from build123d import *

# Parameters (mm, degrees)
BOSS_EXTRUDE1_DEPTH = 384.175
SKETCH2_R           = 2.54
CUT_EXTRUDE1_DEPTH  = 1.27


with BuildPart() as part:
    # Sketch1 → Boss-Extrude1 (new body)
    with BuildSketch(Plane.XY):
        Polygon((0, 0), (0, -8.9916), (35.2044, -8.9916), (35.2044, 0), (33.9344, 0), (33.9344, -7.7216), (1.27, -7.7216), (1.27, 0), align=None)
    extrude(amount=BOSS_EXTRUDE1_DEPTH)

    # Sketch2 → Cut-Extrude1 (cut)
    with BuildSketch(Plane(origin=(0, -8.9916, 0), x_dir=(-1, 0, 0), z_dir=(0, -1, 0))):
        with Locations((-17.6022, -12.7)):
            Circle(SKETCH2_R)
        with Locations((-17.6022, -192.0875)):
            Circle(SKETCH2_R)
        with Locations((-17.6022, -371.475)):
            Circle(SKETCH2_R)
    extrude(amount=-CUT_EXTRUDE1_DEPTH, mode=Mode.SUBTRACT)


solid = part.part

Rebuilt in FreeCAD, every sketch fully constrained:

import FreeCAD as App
import Part
import Sketcher

V = App.Vector
Q = App.Units.Quantity


def add_polygon(sketch, points):
    """Adds a closed chain of lines whose ends are joined by coincident constraints."""
    first, n = sketch.GeometryCount, len(points)
    for a, b in zip(points, points[1:] + points[:1]):
        sketch.addGeometry(Part.LineSegment(App.Vector(*a, 0), App.Vector(*b, 0)), False)
    for i in range(n):
        sketch.addConstraint(Sketcher.Constraint("Coincident", first + i, 2, first + (i + 1) % n, 1))

doc = App.newDocument("Part")
body = doc.addObject("PartDesign::Body", "Body")

# Sketch on XY plane
sketch1 = body.newObject("Sketcher::SketchObject", "Sketch")
sketch1.AttachmentSupport = (doc.getObject("XY_Plane"), [""])
sketch1.MapMode = "FlatFace"
add_polygon(sketch1, [(0, 0), (0, -9), (35.2, -9), (35.2, 0), (33.9, 0), (33.9, -7.7), (1.3, -7.7), (1.3, 0)])  # lines 0-7
sketch1.addConstraint([
    Sketcher.Constraint("Vertical", 0),
    Sketcher.Constraint("Horizontal", 1),
    Sketcher.Constraint("Vertical", 2),
    Sketcher.Constraint("Horizontal", 3),
    Sketcher.Constraint("Vertical", 4),
    Sketcher.Constraint("Horizontal", 5),
    Sketcher.Constraint("Vertical", 6),
    Sketcher.Constraint("Horizontal", 7),
    Sketcher.Constraint("Coincident", 7, 2, -1, 1),
    Sketcher.Constraint("PointOnObject", 2, 2, -1),
    Sketcher.Constraint("Equal", 3, 7),
    Sketcher.Constraint("DistanceX", 3, 2, 3, 1, Q("0.05 in")),
    Sketcher.Constraint("DistanceX", 1, 1, 1, 2, Q("1.386 in")),
    Sketcher.Constraint("DistanceY", 0, 2, 0, 1, Q("0.354 in")),
    Sketcher.Constraint("DistanceY", 4, 2, 4, 1, Q("0.304 in")),
])
pad1 = body.newObject("PartDesign::Pad", "Pad")
pad1.Profile = sketch1
pad1.Length = Q("15.125 in")

# Sketch on XZ plane
sketch2 = body.newObject("Sketcher::SketchObject", "Sketch001")
sketch2.AttachmentSupport = (doc.getObject("XZ_Plane"), [""])
sketch2.MapMode = "FlatFace"
sketch2.AttachmentOffset = App.Placement(V(0, 0, 0.354 * 25.4), App.Rotation())
sketch2.addGeometry([
    Part.Circle(V(17.6, 12.7, 0), V(0, 0, 1), 2.5),
    Part.Circle(V(17.6, 192.1, 0), V(0, 0, 1), 2.5),
    Part.Circle(V(17.6, 371.5, 0), V(0, 0, 1), 2.5),
], False)
sketch2.addConstraint([
    Sketcher.Constraint("Equal", 0, 1),
    Sketcher.Constraint("Equal", 1, 2),
    Sketcher.Constraint("Vertical", 0, 3, 1, 3),
    Sketcher.Constraint("Vertical", 1, 3, 2, 3),
    Sketcher.Constraint("Diameter", 0, Q("0.2 in")),
    Sketcher.Constraint("DistanceY", -1, 1, 0, 3, Q("0.5 in")),
    Sketcher.Constraint("DistanceX", -1, 1, 0, 3, Q("0.693 in")),
    Sketcher.Constraint("DistanceY", -1, 1, 1, 3, Q("7.5625 in")),
    Sketcher.Constraint("DistanceY", -1, 1, 2, 3, Q("14.625 in")),
])
pocket1 = body.newObject("PartDesign::Pocket", "Pocket")
pocket1.Profile = sketch2
pocket1.Length = Q("0.05 in")

doc.recompute()
